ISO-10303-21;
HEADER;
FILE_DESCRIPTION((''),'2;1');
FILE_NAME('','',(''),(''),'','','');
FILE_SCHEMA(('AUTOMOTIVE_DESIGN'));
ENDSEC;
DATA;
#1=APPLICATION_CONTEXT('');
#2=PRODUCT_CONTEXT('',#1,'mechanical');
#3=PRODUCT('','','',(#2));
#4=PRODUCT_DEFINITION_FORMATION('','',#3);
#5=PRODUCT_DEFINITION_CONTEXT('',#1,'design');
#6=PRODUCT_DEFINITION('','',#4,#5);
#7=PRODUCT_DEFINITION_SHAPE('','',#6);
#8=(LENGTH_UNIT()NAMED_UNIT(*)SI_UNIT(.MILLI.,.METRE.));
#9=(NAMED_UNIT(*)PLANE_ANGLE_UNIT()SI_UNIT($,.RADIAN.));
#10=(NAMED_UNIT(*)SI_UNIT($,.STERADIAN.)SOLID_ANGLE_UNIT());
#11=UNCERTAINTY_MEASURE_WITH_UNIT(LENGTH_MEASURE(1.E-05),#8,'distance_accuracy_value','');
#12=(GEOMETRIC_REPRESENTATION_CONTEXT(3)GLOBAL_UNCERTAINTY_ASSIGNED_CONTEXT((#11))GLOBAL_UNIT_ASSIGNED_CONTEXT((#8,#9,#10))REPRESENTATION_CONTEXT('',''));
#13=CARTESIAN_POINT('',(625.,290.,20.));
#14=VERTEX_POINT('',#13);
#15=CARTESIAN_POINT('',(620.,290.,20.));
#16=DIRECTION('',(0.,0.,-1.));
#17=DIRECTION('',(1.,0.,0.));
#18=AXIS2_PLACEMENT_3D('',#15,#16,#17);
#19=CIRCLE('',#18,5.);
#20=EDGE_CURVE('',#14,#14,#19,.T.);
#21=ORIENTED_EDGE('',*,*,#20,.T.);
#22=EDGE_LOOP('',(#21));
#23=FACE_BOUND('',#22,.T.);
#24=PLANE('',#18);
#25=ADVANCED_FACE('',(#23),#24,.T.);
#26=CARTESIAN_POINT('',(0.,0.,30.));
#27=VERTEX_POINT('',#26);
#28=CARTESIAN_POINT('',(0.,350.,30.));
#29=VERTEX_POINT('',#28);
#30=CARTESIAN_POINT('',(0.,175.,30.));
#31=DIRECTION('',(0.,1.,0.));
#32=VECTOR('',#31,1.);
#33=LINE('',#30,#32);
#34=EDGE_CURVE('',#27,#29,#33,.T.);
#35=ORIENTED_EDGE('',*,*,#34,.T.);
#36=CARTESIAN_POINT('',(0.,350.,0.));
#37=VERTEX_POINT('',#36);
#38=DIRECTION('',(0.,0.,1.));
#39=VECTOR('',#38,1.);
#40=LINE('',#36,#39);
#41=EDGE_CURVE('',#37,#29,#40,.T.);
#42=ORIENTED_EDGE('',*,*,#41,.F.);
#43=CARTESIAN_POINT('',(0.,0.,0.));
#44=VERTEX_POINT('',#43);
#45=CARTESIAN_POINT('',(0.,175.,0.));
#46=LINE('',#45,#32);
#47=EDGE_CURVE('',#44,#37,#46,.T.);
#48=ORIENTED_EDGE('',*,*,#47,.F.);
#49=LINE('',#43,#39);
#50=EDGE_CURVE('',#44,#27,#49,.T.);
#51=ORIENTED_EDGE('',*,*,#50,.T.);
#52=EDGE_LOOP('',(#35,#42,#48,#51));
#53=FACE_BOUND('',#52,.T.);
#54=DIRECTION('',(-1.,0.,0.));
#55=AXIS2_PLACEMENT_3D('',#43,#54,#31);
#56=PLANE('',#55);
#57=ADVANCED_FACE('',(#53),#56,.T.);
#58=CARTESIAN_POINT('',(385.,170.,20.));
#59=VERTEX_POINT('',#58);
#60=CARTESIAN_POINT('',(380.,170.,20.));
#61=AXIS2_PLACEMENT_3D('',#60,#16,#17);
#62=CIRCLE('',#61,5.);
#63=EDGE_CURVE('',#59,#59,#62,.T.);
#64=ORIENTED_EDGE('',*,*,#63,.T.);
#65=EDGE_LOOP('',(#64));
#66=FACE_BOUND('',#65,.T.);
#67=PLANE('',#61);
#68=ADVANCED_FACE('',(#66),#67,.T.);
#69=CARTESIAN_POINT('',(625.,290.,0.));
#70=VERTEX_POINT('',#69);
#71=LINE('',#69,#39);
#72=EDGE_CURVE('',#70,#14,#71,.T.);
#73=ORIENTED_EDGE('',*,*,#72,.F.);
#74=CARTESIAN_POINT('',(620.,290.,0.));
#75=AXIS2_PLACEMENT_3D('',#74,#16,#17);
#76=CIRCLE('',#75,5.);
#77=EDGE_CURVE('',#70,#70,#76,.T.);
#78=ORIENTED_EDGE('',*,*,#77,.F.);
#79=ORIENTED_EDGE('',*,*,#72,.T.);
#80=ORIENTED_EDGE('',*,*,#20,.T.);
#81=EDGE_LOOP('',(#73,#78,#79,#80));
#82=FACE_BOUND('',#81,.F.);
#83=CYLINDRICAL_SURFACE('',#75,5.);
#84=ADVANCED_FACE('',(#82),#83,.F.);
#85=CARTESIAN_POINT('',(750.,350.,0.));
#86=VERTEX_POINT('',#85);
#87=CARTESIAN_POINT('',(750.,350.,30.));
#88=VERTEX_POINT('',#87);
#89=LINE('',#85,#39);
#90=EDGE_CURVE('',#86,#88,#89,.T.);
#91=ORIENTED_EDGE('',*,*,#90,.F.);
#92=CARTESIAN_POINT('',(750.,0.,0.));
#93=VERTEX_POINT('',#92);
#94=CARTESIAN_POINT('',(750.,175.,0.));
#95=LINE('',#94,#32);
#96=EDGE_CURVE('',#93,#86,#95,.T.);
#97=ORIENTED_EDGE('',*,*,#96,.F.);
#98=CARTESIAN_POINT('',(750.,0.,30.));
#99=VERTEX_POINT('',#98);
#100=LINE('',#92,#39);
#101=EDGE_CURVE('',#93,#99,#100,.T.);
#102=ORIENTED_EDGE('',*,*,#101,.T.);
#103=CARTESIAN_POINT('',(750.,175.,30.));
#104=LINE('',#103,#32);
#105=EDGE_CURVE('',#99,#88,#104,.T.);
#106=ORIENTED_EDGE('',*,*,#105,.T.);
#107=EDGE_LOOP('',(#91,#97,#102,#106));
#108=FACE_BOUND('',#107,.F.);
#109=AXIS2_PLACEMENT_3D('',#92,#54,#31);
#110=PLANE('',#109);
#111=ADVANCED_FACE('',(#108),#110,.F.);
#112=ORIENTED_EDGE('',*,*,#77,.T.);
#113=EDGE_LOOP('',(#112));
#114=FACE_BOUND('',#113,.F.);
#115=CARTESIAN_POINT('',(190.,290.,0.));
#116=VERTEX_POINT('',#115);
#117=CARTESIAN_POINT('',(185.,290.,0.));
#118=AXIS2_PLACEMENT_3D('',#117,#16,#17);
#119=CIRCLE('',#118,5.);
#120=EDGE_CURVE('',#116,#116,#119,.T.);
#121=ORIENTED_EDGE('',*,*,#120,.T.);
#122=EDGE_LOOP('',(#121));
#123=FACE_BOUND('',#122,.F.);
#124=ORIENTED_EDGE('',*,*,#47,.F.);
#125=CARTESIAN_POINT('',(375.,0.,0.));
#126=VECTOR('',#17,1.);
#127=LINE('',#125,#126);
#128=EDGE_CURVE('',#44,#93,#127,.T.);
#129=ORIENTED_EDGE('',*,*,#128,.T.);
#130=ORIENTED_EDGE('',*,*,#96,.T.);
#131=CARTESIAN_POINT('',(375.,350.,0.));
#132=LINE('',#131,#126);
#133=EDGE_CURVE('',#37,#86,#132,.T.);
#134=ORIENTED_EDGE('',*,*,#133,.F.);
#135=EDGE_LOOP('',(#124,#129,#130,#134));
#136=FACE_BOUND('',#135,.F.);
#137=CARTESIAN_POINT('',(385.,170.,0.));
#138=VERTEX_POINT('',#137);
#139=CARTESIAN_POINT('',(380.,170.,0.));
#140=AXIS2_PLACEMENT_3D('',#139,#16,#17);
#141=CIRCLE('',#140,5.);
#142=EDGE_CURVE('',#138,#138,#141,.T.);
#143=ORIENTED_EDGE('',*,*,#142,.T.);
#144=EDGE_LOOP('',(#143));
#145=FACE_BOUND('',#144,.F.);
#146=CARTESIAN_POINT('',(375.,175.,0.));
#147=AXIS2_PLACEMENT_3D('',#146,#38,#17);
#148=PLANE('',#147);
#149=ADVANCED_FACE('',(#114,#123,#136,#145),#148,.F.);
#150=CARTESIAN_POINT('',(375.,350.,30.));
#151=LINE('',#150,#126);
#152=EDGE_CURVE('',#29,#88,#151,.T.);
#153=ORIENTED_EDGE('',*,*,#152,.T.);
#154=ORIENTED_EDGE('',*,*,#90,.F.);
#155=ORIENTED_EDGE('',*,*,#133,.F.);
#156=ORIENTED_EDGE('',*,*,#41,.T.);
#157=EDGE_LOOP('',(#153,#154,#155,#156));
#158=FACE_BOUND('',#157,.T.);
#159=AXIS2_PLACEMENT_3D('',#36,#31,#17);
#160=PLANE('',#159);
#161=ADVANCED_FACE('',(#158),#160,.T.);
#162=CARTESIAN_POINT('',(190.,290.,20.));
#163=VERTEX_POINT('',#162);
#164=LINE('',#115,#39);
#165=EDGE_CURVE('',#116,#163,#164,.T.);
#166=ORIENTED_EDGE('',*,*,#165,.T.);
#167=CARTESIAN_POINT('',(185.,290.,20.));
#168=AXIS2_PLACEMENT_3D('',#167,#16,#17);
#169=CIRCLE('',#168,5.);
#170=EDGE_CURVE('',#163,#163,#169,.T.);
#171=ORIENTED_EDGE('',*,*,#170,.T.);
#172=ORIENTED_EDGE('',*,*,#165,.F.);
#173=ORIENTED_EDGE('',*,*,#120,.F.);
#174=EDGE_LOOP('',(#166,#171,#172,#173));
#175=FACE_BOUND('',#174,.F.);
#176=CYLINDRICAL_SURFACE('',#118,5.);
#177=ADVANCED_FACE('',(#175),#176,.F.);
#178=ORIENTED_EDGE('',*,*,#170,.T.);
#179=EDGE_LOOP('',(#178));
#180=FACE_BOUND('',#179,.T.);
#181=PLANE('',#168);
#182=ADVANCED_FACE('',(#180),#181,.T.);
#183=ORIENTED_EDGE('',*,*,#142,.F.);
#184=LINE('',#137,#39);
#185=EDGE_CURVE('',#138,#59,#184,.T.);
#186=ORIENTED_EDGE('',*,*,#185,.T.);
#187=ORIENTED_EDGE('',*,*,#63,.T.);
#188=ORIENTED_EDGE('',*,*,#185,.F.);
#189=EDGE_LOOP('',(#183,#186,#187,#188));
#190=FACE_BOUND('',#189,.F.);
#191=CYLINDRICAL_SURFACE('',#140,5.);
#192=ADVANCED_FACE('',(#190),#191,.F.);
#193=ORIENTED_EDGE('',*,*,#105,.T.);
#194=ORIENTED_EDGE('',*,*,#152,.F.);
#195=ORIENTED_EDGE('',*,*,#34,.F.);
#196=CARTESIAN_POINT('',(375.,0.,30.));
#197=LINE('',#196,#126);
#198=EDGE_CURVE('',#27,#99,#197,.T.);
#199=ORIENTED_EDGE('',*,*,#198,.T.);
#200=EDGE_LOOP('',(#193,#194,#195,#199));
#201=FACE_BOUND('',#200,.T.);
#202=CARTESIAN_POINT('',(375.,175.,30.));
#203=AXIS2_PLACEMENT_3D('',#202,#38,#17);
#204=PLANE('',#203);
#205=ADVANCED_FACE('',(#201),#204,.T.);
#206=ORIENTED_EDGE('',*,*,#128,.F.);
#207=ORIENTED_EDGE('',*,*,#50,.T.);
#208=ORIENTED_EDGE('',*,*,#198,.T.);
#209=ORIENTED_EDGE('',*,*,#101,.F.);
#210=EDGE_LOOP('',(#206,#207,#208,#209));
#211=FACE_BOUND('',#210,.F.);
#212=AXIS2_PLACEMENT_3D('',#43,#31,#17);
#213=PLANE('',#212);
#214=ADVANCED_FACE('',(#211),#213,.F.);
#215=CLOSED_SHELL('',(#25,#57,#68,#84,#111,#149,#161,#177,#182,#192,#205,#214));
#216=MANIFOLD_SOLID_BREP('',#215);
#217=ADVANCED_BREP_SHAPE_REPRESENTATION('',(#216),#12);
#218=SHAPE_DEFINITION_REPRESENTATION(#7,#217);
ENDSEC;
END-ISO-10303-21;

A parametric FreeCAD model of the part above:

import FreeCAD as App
import Part
import Sketcher
from FreeCAD import Vector


def add_polygon(sketch, points):
    """Adds a closed chain of lines whose ends are joined by coincident constraints."""
    first, n = sketch.GeometryCount, len(points)
    for a, b in zip(points, points[1:] + points[:1]):
        sketch.addGeometry(Part.LineSegment(App.Vector(*a, 0), App.Vector(*b, 0)), False)
    for i in range(n):
        sketch.addConstraint(Sketcher.Constraint("Coincident", first + i, 2, first + (i + 1) % n, 1))

doc = App.newDocument("Part")
body = doc.addObject("PartDesign::Body", "Body")

# Sketch on XY plane
sketch1 = doc.addObject("Sketcher::SketchObject", "Sketch")
body.addObject(sketch1)
sketch1.AttachmentSupport = (doc.XY_Plane, [""])
sketch1.MapMode = "FlatFace"
add_polygon(sketch1, [(0, 350), (0, 0), (750, 0), (750, 350)])  # lines 0-3
sketch1.addConstraint(Sketcher.Constraint("Vertical", 0))
sketch1.addConstraint(Sketcher.Constraint("Horizontal", 1))
sketch1.addConstraint(Sketcher.Constraint("Vertical", 2))
sketch1.addConstraint(Sketcher.Constraint("Horizontal", 3))
sketch1.addConstraint(Sketcher.Constraint("Coincident", 0, 2, -1, 1))
sketch1.addConstraint(Sketcher.Constraint("DistanceX", 1, 1, 1, 2, 750.0))
sketch1.addConstraint(Sketcher.Constraint("DistanceY", 0, 2, 0, 1, 350.0))
pad1 = doc.addObject("PartDesign::Pad", "Pad")
body.addObject(pad1)
pad1.Profile = sketch1
pad1.Length = 30

# Sketch on XY plane
sketch2 = doc.addObject("Sketcher::SketchObject", "Sketch001")
body.addObject(sketch2)
sketch2.AttachmentSupport = (doc.XY_Plane, [""])
sketch2.MapMode = "FlatFace"
sketch2.addGeometry(Part.Circle(Vector(380, 170, 0), Vector(0, 0, 1), 5), False)
sketch2.addConstraint(Sketcher.Constraint("Diameter", 0, 10.0))
sketch2.addConstraint(Sketcher.Constraint("DistanceX", -1, 1, 0, 3, 380.0))
sketch2.addConstraint(Sketcher.Constraint("DistanceY", -1, 1, 0, 3, 170.0))
pocket1 = doc.addObject("PartDesign::Pocket", "Pocket")
body.addObject(pocket1)
pocket1.Profile = sketch2
pocket1.Length = 20
pocket1.Reversed = True

# Sketch on XY plane
sketch3 = doc.addObject("Sketcher::SketchObject", "Sketch002")
body.addObject(sketch3)
sketch3.AttachmentSupport = (doc.XY_Plane, [""])
sketch3.MapMode = "FlatFace"
sketch3.addGeometry(Part.Circle(Vector(620, 290, 0), Vector(0, 0, 1), 5), False)
sketch3.addConstraint(Sketcher.Constraint("Diameter", 0, 10.0))
sketch3.addConstraint(Sketcher.Constraint("DistanceX", -1, 1, 0, 3, 620.0))
sketch3.addConstraint(Sketcher.Constraint("DistanceY", -1, 1, 0, 3, 290.0))
pocket2 = doc.addObject("PartDesign::Pocket", "Pocket001")
body.addObject(pocket2)
pocket2.Profile = sketch3
pocket2.Length = 20
pocket2.Reversed = True

# Sketch on XY plane
sketch4 = doc.addObject("Sketcher::SketchObject", "Sketch003")
body.addObject(sketch4)
sketch4.AttachmentSupport = (doc.XY_Plane, [""])
sketch4.MapMode = "FlatFace"
sketch4.addGeometry(Part.Circle(Vector(185, 290, 0), Vector(0, 0, 1), 5), False)
sketch4.addConstraint(Sketcher.Constraint("Diameter", 0, 10.0))
sketch4.addConstraint(Sketcher.Constraint("DistanceX", -1, 1, 0, 3, 185.0))
sketch4.addConstraint(Sketcher.Constraint("DistanceY", -1, 1, 0, 3, 290.0))
pocket3 = doc.addObject("PartDesign::Pocket", "Pocket002")
body.addObject(pocket3)
pocket3.Profile = sketch4
pocket3.Length = 20
pocket3.Reversed = True

doc.recompute()
